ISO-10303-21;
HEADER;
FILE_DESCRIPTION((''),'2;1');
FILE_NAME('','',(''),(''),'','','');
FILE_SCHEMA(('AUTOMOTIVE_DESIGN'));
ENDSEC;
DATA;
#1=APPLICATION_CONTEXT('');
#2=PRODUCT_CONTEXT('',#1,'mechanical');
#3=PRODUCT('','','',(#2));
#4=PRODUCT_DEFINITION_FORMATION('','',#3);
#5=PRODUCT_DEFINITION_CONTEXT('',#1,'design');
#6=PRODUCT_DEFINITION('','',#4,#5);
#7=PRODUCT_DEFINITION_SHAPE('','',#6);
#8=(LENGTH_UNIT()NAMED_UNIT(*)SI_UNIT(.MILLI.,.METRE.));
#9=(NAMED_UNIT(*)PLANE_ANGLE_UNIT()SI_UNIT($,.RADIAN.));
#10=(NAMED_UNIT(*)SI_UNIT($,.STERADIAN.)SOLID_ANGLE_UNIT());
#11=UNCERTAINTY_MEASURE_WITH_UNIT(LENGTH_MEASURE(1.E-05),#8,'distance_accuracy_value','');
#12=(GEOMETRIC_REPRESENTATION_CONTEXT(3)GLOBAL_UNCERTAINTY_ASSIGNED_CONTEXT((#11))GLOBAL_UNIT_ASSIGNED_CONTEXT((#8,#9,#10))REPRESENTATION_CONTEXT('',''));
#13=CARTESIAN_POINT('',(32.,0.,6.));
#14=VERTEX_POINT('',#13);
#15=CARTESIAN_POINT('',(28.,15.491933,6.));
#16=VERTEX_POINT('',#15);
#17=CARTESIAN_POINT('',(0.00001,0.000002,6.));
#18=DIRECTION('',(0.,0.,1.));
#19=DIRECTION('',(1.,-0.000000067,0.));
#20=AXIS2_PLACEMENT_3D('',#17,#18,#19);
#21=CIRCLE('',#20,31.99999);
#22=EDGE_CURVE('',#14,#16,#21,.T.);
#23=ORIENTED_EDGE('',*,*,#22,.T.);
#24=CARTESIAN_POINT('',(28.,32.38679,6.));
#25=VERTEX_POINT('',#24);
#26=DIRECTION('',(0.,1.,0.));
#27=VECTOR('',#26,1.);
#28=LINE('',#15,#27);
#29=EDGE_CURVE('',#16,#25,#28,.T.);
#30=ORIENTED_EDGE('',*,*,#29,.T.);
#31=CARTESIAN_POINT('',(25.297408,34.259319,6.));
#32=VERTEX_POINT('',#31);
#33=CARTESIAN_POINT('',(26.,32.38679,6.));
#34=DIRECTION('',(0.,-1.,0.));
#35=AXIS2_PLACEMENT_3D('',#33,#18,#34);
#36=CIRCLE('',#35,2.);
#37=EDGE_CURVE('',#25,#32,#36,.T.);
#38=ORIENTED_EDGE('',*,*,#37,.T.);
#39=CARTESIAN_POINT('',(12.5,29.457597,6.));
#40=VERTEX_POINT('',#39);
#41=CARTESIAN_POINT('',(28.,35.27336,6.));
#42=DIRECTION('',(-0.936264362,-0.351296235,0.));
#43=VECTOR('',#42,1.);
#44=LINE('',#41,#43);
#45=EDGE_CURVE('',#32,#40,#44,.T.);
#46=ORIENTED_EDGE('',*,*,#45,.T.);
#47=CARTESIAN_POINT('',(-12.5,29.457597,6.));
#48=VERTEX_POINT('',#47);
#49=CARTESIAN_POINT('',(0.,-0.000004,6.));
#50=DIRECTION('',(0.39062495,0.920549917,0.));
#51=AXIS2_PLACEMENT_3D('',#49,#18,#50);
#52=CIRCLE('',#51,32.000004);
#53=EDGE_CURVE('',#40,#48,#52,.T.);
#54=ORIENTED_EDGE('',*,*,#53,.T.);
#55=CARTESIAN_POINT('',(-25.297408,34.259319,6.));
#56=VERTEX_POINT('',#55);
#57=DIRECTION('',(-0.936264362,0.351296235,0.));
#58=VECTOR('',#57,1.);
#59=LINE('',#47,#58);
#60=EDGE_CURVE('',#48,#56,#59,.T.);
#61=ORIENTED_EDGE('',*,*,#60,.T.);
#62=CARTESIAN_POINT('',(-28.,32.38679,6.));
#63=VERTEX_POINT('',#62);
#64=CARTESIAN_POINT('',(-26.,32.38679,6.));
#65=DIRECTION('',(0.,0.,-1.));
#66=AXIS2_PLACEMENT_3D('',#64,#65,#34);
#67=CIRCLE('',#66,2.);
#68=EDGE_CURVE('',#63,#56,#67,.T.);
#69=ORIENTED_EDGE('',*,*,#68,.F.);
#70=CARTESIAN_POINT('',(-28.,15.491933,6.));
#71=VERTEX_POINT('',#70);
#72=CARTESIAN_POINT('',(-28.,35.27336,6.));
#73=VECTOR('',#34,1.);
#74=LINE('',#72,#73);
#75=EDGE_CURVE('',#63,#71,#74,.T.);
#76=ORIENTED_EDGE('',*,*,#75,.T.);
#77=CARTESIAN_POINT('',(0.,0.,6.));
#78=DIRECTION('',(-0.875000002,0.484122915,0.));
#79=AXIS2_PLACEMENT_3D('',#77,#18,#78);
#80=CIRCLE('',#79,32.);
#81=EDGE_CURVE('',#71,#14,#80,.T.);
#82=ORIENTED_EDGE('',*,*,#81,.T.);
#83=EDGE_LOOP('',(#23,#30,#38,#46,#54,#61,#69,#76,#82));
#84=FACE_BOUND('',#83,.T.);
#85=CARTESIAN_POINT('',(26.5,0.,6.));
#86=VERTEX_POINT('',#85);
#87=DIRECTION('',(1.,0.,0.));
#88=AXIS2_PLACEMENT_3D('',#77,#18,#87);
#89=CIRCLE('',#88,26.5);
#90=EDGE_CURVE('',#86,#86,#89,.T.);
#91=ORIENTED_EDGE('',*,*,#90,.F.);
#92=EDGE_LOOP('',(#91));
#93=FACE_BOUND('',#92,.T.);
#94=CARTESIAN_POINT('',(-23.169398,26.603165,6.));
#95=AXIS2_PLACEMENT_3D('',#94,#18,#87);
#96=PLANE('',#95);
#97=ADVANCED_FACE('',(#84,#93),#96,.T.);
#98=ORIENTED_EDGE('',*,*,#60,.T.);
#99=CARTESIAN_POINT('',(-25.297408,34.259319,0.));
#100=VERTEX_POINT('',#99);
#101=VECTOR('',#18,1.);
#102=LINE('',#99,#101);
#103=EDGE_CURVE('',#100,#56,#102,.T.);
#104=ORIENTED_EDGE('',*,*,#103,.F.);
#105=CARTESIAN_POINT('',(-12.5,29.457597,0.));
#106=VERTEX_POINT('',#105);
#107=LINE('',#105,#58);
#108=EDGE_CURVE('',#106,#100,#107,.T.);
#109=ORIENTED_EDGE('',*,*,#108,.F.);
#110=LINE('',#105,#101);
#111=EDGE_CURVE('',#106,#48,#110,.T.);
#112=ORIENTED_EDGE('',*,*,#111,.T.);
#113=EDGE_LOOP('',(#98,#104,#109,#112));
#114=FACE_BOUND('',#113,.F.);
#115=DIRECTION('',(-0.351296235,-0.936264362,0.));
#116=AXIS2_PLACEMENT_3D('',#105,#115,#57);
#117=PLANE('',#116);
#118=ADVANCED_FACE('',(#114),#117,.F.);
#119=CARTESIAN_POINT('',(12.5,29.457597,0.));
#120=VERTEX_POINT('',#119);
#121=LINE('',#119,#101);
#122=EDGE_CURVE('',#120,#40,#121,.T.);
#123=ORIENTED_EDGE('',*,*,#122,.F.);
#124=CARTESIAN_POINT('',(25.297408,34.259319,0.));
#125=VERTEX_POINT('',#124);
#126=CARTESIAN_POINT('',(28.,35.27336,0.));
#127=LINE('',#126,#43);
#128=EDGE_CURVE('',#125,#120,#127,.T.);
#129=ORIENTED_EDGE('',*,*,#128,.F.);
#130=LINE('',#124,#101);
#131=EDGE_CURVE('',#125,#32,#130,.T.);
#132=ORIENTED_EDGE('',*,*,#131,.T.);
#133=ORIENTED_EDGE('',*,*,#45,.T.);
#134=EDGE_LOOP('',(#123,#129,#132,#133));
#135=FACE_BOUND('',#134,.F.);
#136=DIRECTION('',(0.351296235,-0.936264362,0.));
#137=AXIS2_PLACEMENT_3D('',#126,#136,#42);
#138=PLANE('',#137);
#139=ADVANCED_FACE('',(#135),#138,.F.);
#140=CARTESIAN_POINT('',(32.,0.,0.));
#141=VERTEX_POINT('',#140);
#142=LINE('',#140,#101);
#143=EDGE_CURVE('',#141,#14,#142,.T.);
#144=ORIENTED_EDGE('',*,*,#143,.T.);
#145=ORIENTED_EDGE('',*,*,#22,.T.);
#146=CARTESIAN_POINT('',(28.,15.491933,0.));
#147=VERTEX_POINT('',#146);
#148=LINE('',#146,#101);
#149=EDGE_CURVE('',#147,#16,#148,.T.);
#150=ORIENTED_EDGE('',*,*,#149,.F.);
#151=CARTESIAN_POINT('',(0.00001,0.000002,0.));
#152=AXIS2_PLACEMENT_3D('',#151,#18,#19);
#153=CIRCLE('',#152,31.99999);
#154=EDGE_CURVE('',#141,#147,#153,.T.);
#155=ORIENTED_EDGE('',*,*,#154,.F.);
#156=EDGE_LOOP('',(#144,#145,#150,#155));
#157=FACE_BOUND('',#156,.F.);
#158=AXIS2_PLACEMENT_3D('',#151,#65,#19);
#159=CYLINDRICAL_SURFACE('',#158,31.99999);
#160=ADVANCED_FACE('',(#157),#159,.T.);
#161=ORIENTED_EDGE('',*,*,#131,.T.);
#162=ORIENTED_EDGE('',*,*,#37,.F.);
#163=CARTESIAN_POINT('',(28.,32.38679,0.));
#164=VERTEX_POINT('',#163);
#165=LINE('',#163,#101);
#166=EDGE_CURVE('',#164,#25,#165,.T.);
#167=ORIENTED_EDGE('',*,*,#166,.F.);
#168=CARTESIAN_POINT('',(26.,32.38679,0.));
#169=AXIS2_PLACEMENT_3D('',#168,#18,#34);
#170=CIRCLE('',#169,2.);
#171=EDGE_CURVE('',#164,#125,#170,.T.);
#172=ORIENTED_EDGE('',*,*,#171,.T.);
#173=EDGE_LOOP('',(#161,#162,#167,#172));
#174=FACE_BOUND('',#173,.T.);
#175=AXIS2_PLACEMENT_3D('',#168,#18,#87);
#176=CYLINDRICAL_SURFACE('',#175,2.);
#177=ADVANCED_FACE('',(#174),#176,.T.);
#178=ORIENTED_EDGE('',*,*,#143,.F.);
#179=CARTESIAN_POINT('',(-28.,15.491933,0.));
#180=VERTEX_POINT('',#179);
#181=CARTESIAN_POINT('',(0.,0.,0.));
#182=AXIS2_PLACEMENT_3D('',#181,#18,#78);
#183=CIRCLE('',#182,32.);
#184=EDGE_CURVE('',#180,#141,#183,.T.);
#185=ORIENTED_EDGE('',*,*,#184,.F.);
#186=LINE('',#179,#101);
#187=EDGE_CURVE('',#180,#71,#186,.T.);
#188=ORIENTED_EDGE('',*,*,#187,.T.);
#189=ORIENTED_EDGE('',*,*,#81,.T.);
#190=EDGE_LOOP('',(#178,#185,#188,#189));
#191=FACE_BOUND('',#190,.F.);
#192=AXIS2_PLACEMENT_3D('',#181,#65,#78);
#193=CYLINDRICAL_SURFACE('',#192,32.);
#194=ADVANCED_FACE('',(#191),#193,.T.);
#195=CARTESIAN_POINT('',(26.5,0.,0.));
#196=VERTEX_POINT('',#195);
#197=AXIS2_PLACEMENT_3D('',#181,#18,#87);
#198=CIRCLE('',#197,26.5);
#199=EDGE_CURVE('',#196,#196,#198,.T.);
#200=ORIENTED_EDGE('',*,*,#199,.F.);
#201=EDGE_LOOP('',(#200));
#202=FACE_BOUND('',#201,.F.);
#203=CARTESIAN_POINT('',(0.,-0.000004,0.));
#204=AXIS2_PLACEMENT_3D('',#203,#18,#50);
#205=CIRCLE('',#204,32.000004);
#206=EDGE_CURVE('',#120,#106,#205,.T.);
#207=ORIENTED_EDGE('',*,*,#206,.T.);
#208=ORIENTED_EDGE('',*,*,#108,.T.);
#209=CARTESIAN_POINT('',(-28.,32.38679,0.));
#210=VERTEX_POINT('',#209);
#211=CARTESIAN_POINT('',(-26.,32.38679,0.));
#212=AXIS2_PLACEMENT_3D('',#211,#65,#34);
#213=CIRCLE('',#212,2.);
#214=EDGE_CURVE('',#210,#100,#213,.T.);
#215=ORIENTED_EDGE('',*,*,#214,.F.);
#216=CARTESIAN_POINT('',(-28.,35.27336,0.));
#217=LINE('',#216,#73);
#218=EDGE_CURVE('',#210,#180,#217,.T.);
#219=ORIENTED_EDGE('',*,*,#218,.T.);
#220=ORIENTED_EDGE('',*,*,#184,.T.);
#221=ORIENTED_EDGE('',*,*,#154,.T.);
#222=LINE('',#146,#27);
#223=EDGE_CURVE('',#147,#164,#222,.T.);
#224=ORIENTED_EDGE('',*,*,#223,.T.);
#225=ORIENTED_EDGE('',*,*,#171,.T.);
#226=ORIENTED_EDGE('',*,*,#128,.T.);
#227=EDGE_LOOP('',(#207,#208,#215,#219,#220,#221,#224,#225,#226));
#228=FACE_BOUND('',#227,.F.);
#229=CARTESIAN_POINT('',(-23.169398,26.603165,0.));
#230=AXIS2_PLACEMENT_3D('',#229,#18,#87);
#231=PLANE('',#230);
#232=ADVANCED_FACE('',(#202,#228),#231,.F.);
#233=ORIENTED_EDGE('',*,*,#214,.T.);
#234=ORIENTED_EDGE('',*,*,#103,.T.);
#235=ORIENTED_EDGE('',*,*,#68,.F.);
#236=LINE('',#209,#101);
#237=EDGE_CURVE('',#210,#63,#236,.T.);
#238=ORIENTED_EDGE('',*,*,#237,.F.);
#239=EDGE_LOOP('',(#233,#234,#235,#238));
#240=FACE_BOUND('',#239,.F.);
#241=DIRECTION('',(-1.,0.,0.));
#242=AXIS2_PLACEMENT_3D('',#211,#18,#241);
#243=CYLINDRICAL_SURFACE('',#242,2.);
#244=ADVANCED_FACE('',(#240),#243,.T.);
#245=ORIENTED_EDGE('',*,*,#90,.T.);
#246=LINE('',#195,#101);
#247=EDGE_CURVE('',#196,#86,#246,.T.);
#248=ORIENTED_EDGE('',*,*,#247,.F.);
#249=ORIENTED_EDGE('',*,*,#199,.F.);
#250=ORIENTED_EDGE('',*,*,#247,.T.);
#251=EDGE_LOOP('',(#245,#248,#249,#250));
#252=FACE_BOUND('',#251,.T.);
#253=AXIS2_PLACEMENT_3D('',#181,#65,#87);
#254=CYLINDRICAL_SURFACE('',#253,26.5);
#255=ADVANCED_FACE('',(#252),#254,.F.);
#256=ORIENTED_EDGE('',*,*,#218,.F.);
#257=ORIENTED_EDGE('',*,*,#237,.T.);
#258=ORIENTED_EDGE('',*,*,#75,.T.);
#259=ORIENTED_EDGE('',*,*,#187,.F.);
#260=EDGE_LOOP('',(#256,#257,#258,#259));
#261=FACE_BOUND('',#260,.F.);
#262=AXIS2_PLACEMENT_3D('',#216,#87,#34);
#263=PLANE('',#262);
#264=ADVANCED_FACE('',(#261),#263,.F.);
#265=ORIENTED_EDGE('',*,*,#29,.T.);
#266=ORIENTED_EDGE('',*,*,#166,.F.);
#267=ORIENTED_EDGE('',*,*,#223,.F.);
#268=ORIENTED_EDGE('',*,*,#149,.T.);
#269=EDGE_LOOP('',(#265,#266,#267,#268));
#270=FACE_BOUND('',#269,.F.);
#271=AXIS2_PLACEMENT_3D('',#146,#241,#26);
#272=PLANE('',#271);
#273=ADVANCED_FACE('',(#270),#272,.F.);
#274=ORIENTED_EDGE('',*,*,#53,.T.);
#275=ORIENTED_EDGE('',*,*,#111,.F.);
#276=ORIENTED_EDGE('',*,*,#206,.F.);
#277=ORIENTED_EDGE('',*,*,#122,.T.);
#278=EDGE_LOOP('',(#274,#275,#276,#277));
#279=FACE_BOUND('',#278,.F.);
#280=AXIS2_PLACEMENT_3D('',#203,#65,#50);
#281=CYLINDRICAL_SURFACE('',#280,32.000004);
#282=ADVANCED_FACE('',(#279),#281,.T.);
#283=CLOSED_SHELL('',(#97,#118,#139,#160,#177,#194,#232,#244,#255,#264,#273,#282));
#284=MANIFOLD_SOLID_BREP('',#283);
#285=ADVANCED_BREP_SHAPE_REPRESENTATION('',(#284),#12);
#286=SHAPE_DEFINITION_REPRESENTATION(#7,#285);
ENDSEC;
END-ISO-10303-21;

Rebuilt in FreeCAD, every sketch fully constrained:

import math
import FreeCAD as App
import Part
import Sketcher
from FreeCAD import Vector
Q = App.Units.Quantity


def edges_at(feature, points):
    """Names of the edges that pass closest to the given points."""
    edges = feature.Shape.Edges
    near = lambda p: min(range(len(edges)), key=lambda i: edges[i].distToShape(Part.Vertex(*p))[0])
    return sorted({f"Edge{near(p) + 1}" for p in points})

doc = App.newDocument("Part")
params = doc.addObject("Spreadsheet::Sheet", "Params")
for row, (alias, value) in enumerate([
    ("sketch1_diameter", "53 mm"),
    ("sketch1_radius", "32 mm"),
    ("pad1_length", "6 mm"),
    ("fillet_radius", "2 mm"),
], start=1):
    params.set(f"A{row}", alias)
    params.set(f"B{row}", "=" + value)
    params.setAlias(f"B{row}", alias)

body = doc.addObject("PartDesign::Body", "Body")

# Sketch on XY plane
sketch1 = body.newObject("Sketcher::SketchObject", "Sketch")
sketch1.AttachmentSupport = (doc.getObject("XY_Plane"), [""])
sketch1.MapMode = "FlatFace"
sketch1.addGeometry(Part.LineSegment(Vector(-28, 35.27336, 0), Vector(-28, 15.491933, 0)), False)
sketch1.addGeometry(Part.ArcOfCircle(Part.Circle(Vector(0, 0, 0), Vector(0, 0, 1), 32), math.radians(151.044976), math.radians(360)), False)
sketch1.addGeometry(Part.ArcOfCircle(Part.Circle(Vector(0.00001, 0.000002, 0), Vector(0, 0, 1), 31.99999), math.radians(-0.000004), math.radians(28.955029)), False)
sketch1.addGeometry(Part.LineSegment(Vector(28, 15.491933, 0), Vector(28, 35.27336, 0)), False)
sketch1.addGeometry(Part.LineSegment(Vector(28, 35.27336, 0), Vector(12.5, 29.457597, 0)), False)
sketch1.addGeometry(Part.ArcOfCircle(Part.Circle(Vector(0, -0.000004, 0), Vector(0, 0, 1), 32.000004), math.radians(67.006609), math.radians(112.993391)), False)
sketch1.addGeometry(Part.LineSegment(Vector(-12.5, 29.457597, 0), Vector(-28, 35.27336, 0)), False)
sketch1.addGeometry(Part.Circle(Vector(0, 0, 0), Vector(0, 0, 1), 26.5), False)
sketch1.addConstraint(Sketcher.Constraint("Coincident", 0, 2, 1, 1))
sketch1.addConstraint(Sketcher.Constraint("Tangent", 1, 2, 2, 1))
sketch1.addConstraint(Sketcher.Constraint("Coincident", 2, 2, 3, 1))
sketch1.addConstraint(Sketcher.Constraint("Coincident", 3, 2, 4, 1))
sketch1.addConstraint(Sketcher.Constraint("Coincident", 4, 2, 5, 1))
sketch1.addConstraint(Sketcher.Constraint("Coincident", 5, 2, 6, 1))
sketch1.addConstraint(Sketcher.Constraint("Coincident", 6, 2, 0, 1))
sketch1.addConstraint(Sketcher.Constraint("Vertical", 0))
sketch1.addConstraint(Sketcher.Constraint("Vertical", 3))
sketch1.addConstraint(Sketcher.Constraint("Coincident", 1, 3, -1, 1))
sketch1.addConstraint(Sketcher.Constraint("Coincident", 5, 3, -1, 1))
sketch1.addConstraint(Sketcher.Constraint("Coincident", 7, 3, -1, 1))
sketch1.addConstraint(Sketcher.Constraint("Symmetric", 0, 2, 2, 2, -2))
sketch1.addConstraint(Sketcher.Constraint("PointOnObject", 1, 2, -1))
sketch1.addConstraint(Sketcher.Constraint("Horizontal", 4, 2, 5, 2))
sketch1.addConstraint(Sketcher.Constraint("Horizontal", 3, 2, 6, 2))
sketch1.addConstraint(Sketcher.Constraint("Diameter", 7, Q("53 mm")))
sketch1.addConstraint(Sketcher.Constraint("Radius", 1, Q("32 mm")))
sketch1.addConstraint(Sketcher.Constraint("DistanceX", 0, 2, -1, 1, Q("28 mm")))
sketch1.addConstraint(Sketcher.Constraint("DistanceX", 5, 2, 4, 2, Q("25 mm")))
sketch1.addConstraint(Sketcher.Constraint("Radius", 5, Q("32.000004 mm")))
sketch1.addConstraint(Sketcher.Constraint("DistanceY", 0, 2, 0, 1, Q("19.781427 mm")))
sketch1.setExpression("Constraints[16]", "Params.sketch1_diameter")
sketch1.setExpression("Constraints[17]", "Params.sketch1_radius")
pad1 = body.newObject("PartDesign::Pad", "Pad")
pad1.Profile = sketch1
pad1.setExpression("Length", "Params.pad1_length")
doc.recompute()

fillet = body.newObject("PartDesign::Fillet", "Fillet")
fillet.Base = (pad1, edges_at(pad1, [(-28, 35.273, 3), (28, 35.273, 3)]))
fillet.setExpression("Radius", "Params.fillet_radius")

doc.recompute()
